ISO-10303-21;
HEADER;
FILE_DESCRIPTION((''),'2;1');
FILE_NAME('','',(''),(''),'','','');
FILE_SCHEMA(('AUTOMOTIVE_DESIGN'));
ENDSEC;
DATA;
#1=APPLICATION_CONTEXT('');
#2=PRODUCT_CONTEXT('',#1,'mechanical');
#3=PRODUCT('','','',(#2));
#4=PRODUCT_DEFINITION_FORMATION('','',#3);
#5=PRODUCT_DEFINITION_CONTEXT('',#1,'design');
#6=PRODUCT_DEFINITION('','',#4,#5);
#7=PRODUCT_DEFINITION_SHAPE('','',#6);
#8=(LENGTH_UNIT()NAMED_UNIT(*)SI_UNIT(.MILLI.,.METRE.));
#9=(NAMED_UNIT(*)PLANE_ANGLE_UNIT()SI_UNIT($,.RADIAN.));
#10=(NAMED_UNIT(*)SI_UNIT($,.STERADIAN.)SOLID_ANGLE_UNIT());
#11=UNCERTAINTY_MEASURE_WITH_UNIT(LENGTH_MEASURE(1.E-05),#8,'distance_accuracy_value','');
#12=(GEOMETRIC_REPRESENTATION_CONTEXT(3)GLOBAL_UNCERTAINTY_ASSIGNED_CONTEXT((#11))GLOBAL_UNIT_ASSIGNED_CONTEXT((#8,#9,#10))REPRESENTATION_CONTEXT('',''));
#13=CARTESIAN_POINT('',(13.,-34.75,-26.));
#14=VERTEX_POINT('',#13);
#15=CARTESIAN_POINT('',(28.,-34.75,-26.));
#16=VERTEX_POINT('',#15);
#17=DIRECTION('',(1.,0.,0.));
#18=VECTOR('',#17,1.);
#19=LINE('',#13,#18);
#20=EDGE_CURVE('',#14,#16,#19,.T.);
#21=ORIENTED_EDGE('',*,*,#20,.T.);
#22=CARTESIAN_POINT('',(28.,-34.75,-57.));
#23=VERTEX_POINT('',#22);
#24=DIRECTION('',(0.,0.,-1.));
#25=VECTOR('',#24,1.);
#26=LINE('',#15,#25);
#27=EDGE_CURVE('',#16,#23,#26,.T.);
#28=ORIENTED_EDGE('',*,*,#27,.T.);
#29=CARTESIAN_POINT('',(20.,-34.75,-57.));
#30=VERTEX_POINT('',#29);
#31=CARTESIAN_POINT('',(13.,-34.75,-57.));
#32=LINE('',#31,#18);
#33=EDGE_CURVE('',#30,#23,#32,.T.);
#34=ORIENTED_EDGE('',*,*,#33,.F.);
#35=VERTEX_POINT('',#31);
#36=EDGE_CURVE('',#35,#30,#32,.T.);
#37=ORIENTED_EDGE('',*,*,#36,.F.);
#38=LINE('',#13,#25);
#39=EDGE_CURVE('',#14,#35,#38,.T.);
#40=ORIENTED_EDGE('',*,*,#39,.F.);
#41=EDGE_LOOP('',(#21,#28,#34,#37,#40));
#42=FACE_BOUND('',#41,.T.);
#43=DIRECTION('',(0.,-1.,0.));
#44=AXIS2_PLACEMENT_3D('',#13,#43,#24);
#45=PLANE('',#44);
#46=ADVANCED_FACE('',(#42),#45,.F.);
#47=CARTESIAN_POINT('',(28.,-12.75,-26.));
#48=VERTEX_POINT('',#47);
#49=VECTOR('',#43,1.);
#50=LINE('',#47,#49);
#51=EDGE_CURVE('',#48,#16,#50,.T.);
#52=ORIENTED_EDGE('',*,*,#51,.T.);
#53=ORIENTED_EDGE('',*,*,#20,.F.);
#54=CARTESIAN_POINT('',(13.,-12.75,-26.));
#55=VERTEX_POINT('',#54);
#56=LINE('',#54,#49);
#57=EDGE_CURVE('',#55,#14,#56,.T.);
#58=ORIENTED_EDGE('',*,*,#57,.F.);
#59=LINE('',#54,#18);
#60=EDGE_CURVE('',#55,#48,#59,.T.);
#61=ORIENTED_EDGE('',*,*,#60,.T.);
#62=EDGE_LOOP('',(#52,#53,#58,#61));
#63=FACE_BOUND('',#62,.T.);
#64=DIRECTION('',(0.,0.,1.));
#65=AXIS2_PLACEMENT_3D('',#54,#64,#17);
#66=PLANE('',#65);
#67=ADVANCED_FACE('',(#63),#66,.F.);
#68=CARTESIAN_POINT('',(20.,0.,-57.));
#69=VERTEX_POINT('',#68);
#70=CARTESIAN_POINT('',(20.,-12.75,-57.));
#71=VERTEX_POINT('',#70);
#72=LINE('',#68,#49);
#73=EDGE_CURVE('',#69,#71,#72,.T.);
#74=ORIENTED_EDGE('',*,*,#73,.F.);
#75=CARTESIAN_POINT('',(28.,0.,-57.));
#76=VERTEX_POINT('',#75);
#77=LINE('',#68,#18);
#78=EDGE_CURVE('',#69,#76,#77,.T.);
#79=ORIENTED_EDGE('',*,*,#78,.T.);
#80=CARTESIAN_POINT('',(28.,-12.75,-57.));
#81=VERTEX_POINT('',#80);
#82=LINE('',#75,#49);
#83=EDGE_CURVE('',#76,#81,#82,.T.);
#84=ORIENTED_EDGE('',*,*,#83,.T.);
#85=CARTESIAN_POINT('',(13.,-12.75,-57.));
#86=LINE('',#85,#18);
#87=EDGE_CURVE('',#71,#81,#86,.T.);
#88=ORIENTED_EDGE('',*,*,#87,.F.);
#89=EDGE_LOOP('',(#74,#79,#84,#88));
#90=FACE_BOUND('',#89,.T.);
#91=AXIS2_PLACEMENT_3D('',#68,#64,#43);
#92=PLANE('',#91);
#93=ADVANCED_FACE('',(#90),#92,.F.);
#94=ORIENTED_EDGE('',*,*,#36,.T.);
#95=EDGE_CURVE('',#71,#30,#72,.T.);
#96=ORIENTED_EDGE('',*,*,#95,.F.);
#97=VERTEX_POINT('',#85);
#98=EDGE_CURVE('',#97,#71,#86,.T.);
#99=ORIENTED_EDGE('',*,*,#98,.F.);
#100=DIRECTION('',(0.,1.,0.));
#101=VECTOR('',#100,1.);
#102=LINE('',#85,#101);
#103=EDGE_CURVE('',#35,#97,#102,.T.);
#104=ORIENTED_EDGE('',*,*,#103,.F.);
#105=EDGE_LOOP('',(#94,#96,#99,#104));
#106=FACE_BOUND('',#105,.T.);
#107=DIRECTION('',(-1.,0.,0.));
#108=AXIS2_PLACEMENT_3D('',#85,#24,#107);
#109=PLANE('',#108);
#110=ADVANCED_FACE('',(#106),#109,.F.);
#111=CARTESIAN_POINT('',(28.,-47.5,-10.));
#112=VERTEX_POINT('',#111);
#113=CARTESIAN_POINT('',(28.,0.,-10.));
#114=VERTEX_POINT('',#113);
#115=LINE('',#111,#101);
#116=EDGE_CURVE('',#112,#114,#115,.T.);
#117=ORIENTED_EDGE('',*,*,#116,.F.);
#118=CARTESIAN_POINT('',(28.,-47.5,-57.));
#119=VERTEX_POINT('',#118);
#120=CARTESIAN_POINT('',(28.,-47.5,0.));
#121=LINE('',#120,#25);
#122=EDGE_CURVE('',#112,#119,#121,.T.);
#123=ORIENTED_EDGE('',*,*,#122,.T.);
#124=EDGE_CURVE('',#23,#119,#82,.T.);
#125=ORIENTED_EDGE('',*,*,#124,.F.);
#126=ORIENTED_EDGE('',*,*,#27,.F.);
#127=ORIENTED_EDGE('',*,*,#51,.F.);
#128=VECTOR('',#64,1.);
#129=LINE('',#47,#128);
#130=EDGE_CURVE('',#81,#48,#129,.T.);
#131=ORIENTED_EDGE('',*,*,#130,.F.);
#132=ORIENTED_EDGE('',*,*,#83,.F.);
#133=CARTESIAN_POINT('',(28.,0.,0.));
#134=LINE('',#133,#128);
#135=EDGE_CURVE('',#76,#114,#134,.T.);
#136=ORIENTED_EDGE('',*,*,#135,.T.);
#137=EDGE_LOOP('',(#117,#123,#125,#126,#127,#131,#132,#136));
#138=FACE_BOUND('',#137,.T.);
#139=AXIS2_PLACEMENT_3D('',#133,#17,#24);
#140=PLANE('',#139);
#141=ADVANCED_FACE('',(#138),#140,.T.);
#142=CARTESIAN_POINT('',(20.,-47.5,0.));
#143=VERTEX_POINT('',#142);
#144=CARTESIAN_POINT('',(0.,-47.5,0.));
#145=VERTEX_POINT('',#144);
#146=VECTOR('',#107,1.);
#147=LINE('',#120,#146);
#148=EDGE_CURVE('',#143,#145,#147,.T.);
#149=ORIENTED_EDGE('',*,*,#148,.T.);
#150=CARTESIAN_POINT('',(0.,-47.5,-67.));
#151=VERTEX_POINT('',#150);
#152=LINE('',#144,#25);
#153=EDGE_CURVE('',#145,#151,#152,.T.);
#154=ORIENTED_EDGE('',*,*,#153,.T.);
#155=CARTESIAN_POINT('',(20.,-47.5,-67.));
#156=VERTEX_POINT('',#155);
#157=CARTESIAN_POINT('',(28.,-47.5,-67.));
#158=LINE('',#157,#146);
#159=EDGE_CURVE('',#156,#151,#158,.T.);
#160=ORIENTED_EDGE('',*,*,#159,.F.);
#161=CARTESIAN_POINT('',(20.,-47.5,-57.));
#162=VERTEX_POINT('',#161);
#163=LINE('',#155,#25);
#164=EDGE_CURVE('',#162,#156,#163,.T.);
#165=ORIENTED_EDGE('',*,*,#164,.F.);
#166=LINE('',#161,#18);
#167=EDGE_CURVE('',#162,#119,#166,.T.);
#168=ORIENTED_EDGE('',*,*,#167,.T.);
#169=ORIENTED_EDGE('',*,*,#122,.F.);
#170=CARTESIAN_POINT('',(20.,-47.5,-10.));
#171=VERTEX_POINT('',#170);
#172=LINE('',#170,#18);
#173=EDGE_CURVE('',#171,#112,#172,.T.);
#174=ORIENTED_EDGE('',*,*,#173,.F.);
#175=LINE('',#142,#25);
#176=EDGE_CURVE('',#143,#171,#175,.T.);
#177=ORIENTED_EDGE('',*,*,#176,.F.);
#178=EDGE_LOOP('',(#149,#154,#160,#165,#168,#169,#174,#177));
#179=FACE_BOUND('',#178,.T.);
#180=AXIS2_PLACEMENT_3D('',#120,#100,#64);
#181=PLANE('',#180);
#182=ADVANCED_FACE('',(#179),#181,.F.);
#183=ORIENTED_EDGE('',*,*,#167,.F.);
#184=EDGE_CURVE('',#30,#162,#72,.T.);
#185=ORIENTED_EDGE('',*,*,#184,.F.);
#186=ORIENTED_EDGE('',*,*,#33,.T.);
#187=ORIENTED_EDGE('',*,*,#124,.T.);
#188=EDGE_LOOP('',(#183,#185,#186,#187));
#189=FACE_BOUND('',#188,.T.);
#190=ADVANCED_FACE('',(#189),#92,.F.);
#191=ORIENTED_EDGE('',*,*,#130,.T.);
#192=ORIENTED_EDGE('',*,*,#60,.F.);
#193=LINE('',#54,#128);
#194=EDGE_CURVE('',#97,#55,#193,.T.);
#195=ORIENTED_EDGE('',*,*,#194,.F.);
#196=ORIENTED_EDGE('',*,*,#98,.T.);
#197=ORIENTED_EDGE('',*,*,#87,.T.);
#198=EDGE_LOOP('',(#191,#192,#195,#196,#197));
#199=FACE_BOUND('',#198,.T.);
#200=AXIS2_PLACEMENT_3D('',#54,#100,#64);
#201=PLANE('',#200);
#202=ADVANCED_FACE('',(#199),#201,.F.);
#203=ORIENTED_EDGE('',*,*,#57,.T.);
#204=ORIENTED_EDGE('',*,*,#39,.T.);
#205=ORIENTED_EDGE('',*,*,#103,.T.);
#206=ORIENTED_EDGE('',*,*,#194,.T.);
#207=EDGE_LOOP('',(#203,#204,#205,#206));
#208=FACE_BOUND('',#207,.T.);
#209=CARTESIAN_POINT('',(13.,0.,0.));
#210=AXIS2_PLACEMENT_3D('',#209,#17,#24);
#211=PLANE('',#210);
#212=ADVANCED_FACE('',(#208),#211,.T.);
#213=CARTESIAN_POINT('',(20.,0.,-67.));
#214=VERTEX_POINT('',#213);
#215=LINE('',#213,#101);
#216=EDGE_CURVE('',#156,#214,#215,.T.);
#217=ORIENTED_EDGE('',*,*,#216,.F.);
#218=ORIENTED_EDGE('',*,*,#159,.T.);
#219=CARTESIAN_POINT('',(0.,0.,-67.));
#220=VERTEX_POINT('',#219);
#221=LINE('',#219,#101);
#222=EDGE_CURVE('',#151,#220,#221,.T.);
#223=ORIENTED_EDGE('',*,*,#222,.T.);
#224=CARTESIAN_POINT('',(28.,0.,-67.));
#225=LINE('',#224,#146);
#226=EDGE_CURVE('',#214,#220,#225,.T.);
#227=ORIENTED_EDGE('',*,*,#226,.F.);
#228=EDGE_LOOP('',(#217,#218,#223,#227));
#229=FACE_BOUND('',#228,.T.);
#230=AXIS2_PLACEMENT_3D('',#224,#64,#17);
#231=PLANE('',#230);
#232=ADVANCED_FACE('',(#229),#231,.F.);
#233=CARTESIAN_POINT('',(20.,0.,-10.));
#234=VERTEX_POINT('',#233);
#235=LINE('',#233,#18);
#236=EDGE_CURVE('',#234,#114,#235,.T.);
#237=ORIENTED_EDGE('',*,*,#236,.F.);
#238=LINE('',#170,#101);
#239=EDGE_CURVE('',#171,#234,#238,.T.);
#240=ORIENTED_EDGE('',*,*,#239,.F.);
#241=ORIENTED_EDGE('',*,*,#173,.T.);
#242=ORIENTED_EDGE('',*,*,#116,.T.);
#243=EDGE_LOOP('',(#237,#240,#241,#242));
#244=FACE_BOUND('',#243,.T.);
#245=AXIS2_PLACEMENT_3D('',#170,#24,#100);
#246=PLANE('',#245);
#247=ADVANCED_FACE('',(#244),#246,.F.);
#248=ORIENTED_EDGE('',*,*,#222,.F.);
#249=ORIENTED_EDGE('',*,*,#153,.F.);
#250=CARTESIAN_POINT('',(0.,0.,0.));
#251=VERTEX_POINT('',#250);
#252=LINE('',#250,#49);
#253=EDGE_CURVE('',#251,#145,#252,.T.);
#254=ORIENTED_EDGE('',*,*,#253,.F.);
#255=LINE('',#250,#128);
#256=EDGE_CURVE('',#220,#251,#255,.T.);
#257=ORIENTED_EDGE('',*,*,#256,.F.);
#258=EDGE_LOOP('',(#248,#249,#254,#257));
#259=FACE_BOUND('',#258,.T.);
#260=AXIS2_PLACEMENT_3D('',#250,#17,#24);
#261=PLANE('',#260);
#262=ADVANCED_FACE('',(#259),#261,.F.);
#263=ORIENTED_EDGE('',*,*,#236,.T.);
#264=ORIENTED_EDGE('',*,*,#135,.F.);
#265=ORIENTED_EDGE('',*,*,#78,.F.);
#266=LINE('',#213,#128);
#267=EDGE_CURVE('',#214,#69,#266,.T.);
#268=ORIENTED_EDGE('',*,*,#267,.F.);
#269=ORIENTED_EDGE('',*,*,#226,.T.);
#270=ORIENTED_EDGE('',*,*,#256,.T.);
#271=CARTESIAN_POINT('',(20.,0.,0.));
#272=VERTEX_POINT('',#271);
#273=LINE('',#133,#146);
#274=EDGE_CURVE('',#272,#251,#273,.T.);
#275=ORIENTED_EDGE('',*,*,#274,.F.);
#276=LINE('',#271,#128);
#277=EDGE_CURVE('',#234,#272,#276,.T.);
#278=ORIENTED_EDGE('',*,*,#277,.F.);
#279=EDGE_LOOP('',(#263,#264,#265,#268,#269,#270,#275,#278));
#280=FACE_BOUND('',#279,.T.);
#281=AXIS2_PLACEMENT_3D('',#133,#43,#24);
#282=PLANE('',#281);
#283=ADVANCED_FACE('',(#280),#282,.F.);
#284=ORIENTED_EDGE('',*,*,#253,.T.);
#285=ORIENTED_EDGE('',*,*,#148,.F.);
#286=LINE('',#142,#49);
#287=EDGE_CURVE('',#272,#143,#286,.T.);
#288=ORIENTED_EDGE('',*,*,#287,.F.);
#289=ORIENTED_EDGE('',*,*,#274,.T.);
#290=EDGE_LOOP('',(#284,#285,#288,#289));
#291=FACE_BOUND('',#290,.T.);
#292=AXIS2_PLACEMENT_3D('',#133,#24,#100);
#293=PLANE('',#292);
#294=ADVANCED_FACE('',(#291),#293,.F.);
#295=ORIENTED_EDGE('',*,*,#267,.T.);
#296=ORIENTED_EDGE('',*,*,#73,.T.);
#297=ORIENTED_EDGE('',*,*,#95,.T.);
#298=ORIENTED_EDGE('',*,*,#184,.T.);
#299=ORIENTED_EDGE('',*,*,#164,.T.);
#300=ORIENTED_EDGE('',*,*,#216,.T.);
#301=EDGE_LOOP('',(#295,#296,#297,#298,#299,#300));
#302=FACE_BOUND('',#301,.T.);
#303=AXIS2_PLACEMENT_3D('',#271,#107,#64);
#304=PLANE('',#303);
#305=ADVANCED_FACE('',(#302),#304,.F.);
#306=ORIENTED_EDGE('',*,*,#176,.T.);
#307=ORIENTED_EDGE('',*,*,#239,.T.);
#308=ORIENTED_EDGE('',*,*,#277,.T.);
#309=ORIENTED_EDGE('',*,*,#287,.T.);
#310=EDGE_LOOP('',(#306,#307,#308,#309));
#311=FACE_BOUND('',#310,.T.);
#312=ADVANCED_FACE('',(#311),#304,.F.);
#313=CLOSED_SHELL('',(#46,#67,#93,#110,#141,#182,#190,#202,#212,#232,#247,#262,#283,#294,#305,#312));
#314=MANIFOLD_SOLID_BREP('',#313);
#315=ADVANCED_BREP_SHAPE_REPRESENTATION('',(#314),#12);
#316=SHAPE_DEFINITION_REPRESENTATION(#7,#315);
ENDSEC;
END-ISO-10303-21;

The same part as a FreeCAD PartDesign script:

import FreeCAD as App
import Part
import Sketcher
from FreeCAD import Vector

doc = App.newDocument("Part")
body = doc.addObject("PartDesign::Body", "Body")

sketch1 = body.newObject("Sketcher::SketchObject", "Sketch")
sketch1.AttachmentSupport = (doc.getObject("YZ_Plane"), [""])
sketch1.MapMode = "FlatFace"
sketch1.addGeometry([
    Part.LineSegment(Vector(0, 0, 0), Vector(-48, 0, 0)),
    Part.LineSegment(Vector(-48, 0, 0), Vector(-48, -67, 0)),
    Part.LineSegment(Vector(-48, -67, 0), Vector(0, -67, 0)),
    Part.LineSegment(Vector(0, -67, 0), Vector(0, 0, 0)),
], False)
sketch1.addConstraint([
    Sketcher.Constraint("Coincident", 0, 2, 1, 1),
    Sketcher.Constraint("Coincident", 1, 2, 2, 1),
    Sketcher.Constraint("Coincident", 2, 2, 3, 1),
    Sketcher.Constraint("Coincident", 3, 2, 0, 1),
    Sketcher.Constraint("Horizontal", 0),
    Sketcher.Constraint("Vertical", 1),
    Sketcher.Constraint("Horizontal", 2),
    Sketcher.Constraint("Vertical", 3),
    Sketcher.Constraint("Coincident", 3, 2, -1, 1),
    Sketcher.Constraint("DistanceY", 1, 2, 1, 1, 67.0),
    Sketcher.Constraint("DistanceX", 0, 2, 0, 1, 47.5),
])
pad1 = body.newObject("PartDesign::Pad", "Pad")
pad1.Profile = sketch1
pad1.Length = 28

sketch2 = body.newObject("Sketcher::SketchObject", "Sketch001")
sketch2.AttachmentSupport = (doc.getObject("YZ_Plane"), [""])
sketch2.MapMode = "FlatFace"
sketch2.AttachmentOffset = App.Placement(Vector(0, 0, 28), App.Rotation())
sketch2.addGeometry([
    Part.LineSegment(Vector(-13, -26, 0), Vector(-35, -26, 0)),
    Part.LineSegment(Vector(-35, -26, 0), Vector(-35, -57, 0)),
    Part.LineSegment(Vector(-35, -57, 0), Vector(-13, -57, 0)),
    Part.LineSegment(Vector(-13, -57, 0), Vector(-13, -26, 0)),
], False)
sketch2.addConstraint([
    Sketcher.Constraint("Coincident", 0, 2, 1, 1),
    Sketcher.Constraint("Coincident", 1, 2, 2, 1),
    Sketcher.Constraint("Coincident", 2, 2, 3, 1),
    Sketcher.Constraint("Coincident", 3, 2, 0, 1),
    Sketcher.Constraint("Horizontal", 0),
    Sketcher.Constraint("Vertical", 1),
    Sketcher.Constraint("Horizontal", 2),
    Sketcher.Constraint("Vertical", 3),
    Sketcher.Constraint("DistanceX", 0, 2, 0, 1, 22.0),
    Sketcher.Constraint("DistanceY", 1, 2, 1, 1, 31.0),
    Sketcher.Constraint("DistanceY", 0, 2, -1, 1, 26.0),
    Sketcher.Constraint("DistanceX", 0, 2, -1, 1, 34.75),
])
pocket1 = body.newObject("PartDesign::Pocket", "Pocket")
pocket1.Profile = sketch2
pocket1.Length = 15

sketch3 = body.newObject("Sketcher::SketchObject", "Sketch002")
sketch3.AttachmentSupport = (doc.getObject("YZ_Plane"), [""])
sketch3.MapMode = "FlatFace"
sketch3.AttachmentOffset = App.Placement(Vector(0, 0, 28), App.Rotation())
sketch3.addGeometry([
    Part.LineSegment(Vector(0, 0, 0), Vector(-48, 0, 0)),
    Part.LineSegment(Vector(-48, 0, 0), Vector(-48, -10, 0)),
    Part.LineSegment(Vector(-48, -10, 0), Vector(0, -10, 0)),
    Part.LineSegment(Vector(0, -10, 0), Vector(0, 0, 0)),
    Part.LineSegment(Vector(0, -57, 0), Vector(-48, -57, 0)),
    Part.LineSegment(Vector(-48, -57, 0), Vector(-48, -67, 0)),
    Part.LineSegment(Vector(-48, -67, 0), Vector(0, -67, 0)),
    Part.LineSegment(Vector(0, -67, 0), Vector(0, -57, 0)),
], False)
sketch3.addConstraint([
    Sketcher.Constraint("Coincident", 0, 2, 1, 1),
    Sketcher.Constraint("Coincident", 1, 2, 2, 1),
    Sketcher.Constraint("Coincident", 2, 2, 3, 1),
    Sketcher.Constraint("Coincident", 3, 2, 0, 1),
    Sketcher.Constraint("Coincident", 4, 2, 5, 1),
    Sketcher.Constraint("Coincident", 5, 2, 6, 1),
    Sketcher.Constraint("Coincident", 6, 2, 7, 1),
    Sketcher.Constraint("Coincident", 7, 2, 4, 1),
    Sketcher.Constraint("Horizontal", 0),
    Sketcher.Constraint("Vertical", 1),
    Sketcher.Constraint("Horizontal", 2),
    Sketcher.Constraint("Vertical", 3),
    Sketcher.Constraint("Horizontal", 4),
    Sketcher.Constraint("Vertical", 5),
    Sketcher.Constraint("Horizontal", 6),
    Sketcher.Constraint("Vertical", 7),
    Sketcher.Constraint("Coincident", 3, 2, -1, 1),
    Sketcher.Constraint("PointOnObject", 6, 2, -2),
    Sketcher.Constraint("Vertical", 1, 2, 4, 2),
    Sketcher.Constraint("Equal", 3, 5),
    Sketcher.Constraint("DistanceY", 1, 2, 1, 1, 10.0),
    Sketcher.Constraint("DistanceX", 0, 2, 0, 1, 47.5),
    Sketcher.Constraint("DistanceY", 4, 2, -1, 1, 57.0),
])
pocket2 = body.newObject("PartDesign::Pocket", "Pocket001")
pocket2.Profile = sketch3
pocket2.Length = 8

doc.recompute()
